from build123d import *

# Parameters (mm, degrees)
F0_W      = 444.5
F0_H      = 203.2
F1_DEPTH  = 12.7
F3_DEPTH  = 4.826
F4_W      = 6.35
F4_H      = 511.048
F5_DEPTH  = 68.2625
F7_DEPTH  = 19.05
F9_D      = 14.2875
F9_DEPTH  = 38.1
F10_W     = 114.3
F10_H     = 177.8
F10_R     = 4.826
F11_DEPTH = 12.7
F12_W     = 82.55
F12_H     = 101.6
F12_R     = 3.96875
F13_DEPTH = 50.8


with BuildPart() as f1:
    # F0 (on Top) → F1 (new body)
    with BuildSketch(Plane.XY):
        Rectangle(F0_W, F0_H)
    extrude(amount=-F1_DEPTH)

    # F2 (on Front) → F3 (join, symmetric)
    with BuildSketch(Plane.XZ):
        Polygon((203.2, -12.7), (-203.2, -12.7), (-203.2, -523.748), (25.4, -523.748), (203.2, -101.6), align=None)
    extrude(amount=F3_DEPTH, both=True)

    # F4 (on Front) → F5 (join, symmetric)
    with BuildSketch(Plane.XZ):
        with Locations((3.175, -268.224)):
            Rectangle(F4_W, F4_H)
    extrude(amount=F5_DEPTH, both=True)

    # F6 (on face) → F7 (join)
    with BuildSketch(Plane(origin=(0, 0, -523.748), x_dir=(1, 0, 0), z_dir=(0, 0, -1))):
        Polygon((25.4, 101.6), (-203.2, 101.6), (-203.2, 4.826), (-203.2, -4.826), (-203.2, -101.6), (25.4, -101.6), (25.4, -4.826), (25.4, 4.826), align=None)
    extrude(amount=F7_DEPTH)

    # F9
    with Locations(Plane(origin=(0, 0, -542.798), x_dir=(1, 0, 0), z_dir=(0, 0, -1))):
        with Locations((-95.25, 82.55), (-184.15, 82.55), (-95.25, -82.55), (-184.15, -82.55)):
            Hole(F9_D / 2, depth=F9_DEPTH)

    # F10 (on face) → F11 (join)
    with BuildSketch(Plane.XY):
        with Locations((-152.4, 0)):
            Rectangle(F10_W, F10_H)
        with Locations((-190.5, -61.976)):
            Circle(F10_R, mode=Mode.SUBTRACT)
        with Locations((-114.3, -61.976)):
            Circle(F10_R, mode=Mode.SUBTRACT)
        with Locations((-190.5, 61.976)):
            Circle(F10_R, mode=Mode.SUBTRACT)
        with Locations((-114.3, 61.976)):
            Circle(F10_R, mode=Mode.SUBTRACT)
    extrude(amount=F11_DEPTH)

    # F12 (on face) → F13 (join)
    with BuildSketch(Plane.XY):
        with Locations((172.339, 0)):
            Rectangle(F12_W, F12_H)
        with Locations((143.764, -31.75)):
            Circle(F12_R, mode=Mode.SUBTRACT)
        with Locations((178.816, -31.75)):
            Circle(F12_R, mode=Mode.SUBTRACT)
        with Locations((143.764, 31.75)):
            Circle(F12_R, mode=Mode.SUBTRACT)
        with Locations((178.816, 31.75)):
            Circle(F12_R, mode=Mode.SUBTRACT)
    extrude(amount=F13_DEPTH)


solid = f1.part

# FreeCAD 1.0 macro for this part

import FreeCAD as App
import Part
import Sketcher

V = App.Vector
Q = App.Units.Quantity


def add_polygon(sketch, points):
    """Adds a closed chain of lines whose ends are joined by coincident constraints."""
    first, n = sketch.GeometryCount, len(points)
    for a, b in zip(points, points[1:] + points[:1]):
        sketch.addGeometry(Part.LineSegment(App.Vector(*a, 0), App.Vector(*b, 0)), False)
    for i in range(n):
        sketch.addConstraint(Sketcher.Constraint("Coincident", first + i, 2, first + (i + 1) % n, 1))

doc = App.newDocument("Part")
params = doc.addObject("Spreadsheet::Sheet", "Params")
for row, (alias, value) in enumerate([
    ("sketch1_height", "8 in"),
    ("sketch1_width", "17.5 in"),
    ("pad1_length", "0.5 in"),
    ("sketch2_width", "16 in"),
    ("sketch2_width2", "9 in"),
    ("sketch2_height", "3.5 in"),
    ("sketch2_height2", "20.12 in"),
    ("pad2_length", "0.38 in"),
    ("sketch3_width", "0.25 in"),
    ("sketch3_height", "20.12 in"),
    ("pad3_length", "5.375 in"),
    ("sketch4_width", "9 in"),
    ("sketch4_height", "8 in"),
    ("pad4_length", "0.75 in"),
    ("sketch5_diameter", "0.5625 in"),
    ("hole_diameter", "0.5625 in"),
    ("hole_depth", "1.5 in"),
    ("sketch6_diameter", "0.38 in"),
    ("sketch6_height", "7 in"),
    ("sketch6_width", "4.5 in"),
    ("pad5_length", "0.5 in"),
    ("sketch7_height", "4 in"),
    ("sketch7_diameter", "0.3125 in"),
    ("sketch7_width", "3.25 in"),
    ("pad6_length", "2 in"),
], start=1):
    params.set(f"A{row}", alias)
    params.set(f"B{row}", "=" + value)
    params.setAlias(f"B{row}", alias)

body = doc.addObject("PartDesign::Body", "Body")

# Sketch on XY plane
sketch1 = body.newObject("Sketcher::SketchObject", "Sketch")
sketch1.AttachmentSupport = (doc.getObject("XY_Plane"), [""])
sketch1.MapMode = "FlatFace"
add_polygon(sketch1, [(-222, 102), (-222, -102), (222, -102), (222, 102)])  # lines 0-3
sketch1.addConstraint(Sketcher.Constraint("Vertical", 0))
sketch1.addConstraint(Sketcher.Constraint("Horizontal", 1))
sketch1.addConstraint(Sketcher.Constraint("Vertical", 2))
sketch1.addConstraint(Sketcher.Constraint("Horizontal", 3))
sketch1.addConstraint(Sketcher.Constraint("Symmetric", 0, 2, 2, 2, -1, 1))
sketch1.addConstraint(Sketcher.Constraint("DistanceY", 0, 2, 0, 1, Q("8 in")))
sketch1.addConstraint(Sketcher.Constraint("DistanceX", 1, 1, 1, 2, Q("17.5 in")))
sketch1.setExpression("Constraints[9]", "Params.sketch1_height")
sketch1.setExpression("Constraints[10]", "Params.sketch1_width")
pad1 = body.newObject("PartDesign::Pad", "Pad")
pad1.Profile = sketch1
pad1.setExpression("Length", "Params.pad1_length")
pad1.Reversed = True

# Sketch on XZ plane
sketch2 = body.newObject("Sketcher::SketchObject", "Sketch001")
sketch2.AttachmentSupport = (doc.getObject("XZ_Plane"), [""])
sketch2.MapMode = "FlatFace"
add_polygon(sketch2, [(203, -13), (-203, -13), (-203, -524), (25, -524), (203, -102)])  # lines 0-4
sketch2.addConstraint(Sketcher.Constraint("Horizontal", 0))
sketch2.addConstraint(Sketcher.Constraint("Vertical", 1))
sketch2.addConstraint(Sketcher.Constraint("Horizontal", 2))
sketch2.addConstraint(Sketcher.Constraint("Vertical", 4))
sketch2.addConstraint(Sketcher.Constraint("DistanceX", 0, 2, 0, 1, Q("16 in")))
sketch2.addConstraint(Sketcher.Constraint("DistanceX", 2, 1, 2, 2, Q("9 in")))
sketch2.addConstraint(Sketcher.Constraint("DistanceY", 4, 1, 4, 2, Q("3.5 in")))
sketch2.addConstraint(Sketcher.Constraint("DistanceX", 0, 2, -1, 1, Q("8 in")))
sketch2.addConstraint(Sketcher.Constraint("DistanceY", 3, 2, -1, 1, Q("4 in")))
sketch2.addConstraint(Sketcher.Constraint("DistanceY", 1, 2, 1, 1, Q("20.12 in")))
sketch2.setExpression("Constraints[9]", "Params.sketch2_width")
sketch2.setExpression("Constraints[10]", "Params.sketch2_width2")
sketch2.setExpression("Constraints[11]", "Params.sketch2_height")
sketch2.setExpression("Constraints[14]", "Params.sketch2_height2")
pad2 = body.newObject("PartDesign::Pad", "Pad001")
pad2.Profile = sketch2
pad2.setExpression("Length", "Params.pad2_length")
pad2.Midplane = True

# Sketch on XZ plane
sketch3 = body.newObject("Sketcher::SketchObject", "Sketch002")
sketch3.AttachmentSupport = (doc.getObject("XZ_Plane"), [""])
sketch3.MapMode = "FlatFace"
add_polygon(sketch3, [(0, -13), (0, -524), (6, -524), (6, -13)])  # lines 0-3
sketch3.addConstraint(Sketcher.Constraint("Vertical", 0))
sketch3.addConstraint(Sketcher.Constraint("Horizontal", 1))
sketch3.addConstraint(Sketcher.Constraint("Vertical", 2))
sketch3.addConstraint(Sketcher.Constraint("Horizontal", 3))
sketch3.addConstraint(Sketcher.Constraint("PointOnObject", 0, 2, -2))
sketch3.addConstraint(Sketcher.Constraint("DistanceX", 1, 1, 1, 2, Q("0.25 in")))
sketch3.addConstraint(Sketcher.Constraint("DistanceY", 0, 2, 0, 1, Q("20.12 in")))
sketch3.addConstraint(Sketcher.Constraint("DistanceY", 2, 2, -1, 1, Q("0.5 in")))
sketch3.setExpression("Constraints[9]", "Params.sketch3_width")
sketch3.setExpression("Constraints[10]", "Params.sketch3_height")
pad3 = body.newObject("PartDesign::Pad", "Pad002")
pad3.Profile = sketch3
pad3.setExpression("Length", "Params.pad3_length")
pad3.Midplane = True

# Sketch on XY plane
sketch4 = body.newObject("Sketcher::SketchObject", "Sketch003")
sketch4.AttachmentSupport = (doc.getObject("XY_Plane"), [""])
sketch4.MapMode = "FlatFace"
sketch4.AttachmentOffset = App.Placement(V(0, 0, -20.62 * 25.4), App.Rotation())
add_polygon(sketch4, [(25, -102), (-203, -102), (-203, 102), (25, 102)])  # lines 0-3
sketch4.addConstraint(Sketcher.Constraint("Horizontal", 0))
sketch4.addConstraint(Sketcher.Constraint("Vertical", 1))
sketch4.addConstraint(Sketcher.Constraint("Horizontal", 2))
sketch4.addConstraint(Sketcher.Constraint("Vertical", 3))
sketch4.addConstraint(Sketcher.Constraint("DistanceX", 0, 2, 0, 1, Q("9 in")))
sketch4.addConstraint(Sketcher.Constraint("DistanceY", 1, 1, 1, 2, Q("8 in")))
sketch4.addConstraint(Sketcher.Constraint("DistanceX", 0, 2, -1, 1, Q("8 in")))
sketch4.addConstraint(Sketcher.Constraint("DistanceY", 0, 2, -1, 1, Q("4 in")))
sketch4.setExpression("Constraints[8]", "Params.sketch4_width")
sketch4.setExpression("Constraints[9]", "Params.sketch4_height")
pad4 = body.newObject("PartDesign::Pad", "Pad003")
pad4.Profile = sketch4
pad4.setExpression("Length", "Params.pad4_length")
pad4.Reversed = True

# Sketch on XY plane
sketch5 = body.newObject("Sketcher::SketchObject", "Sketch004")
sketch5.AttachmentSupport = (doc.getObject("XY_Plane"), [""])
sketch5.MapMode = "FlatFace"
sketch5.AttachmentOffset = App.Placement(V(0, 0, -21.37 * 25.4), App.Rotation())
sketch5.addGeometry(Part.Circle(V(-95, -83, 0), V(0, 0, 1), 7), False)
sketch5.addGeometry(Part.Circle(V(-184, -83, 0), V(0, 0, 1), 7), False)
sketch5.addGeometry(Part.Circle(V(-95, 83, 0), V(0, 0, 1), 7), False)
sketch5.addGeometry(Part.Circle(V(-184, 83, 0), V(0, 0, 1), 7), False)
sketch5.addConstraint(Sketcher.Constraint("Equal", 0, 1))
sketch5.addConstraint(Sketcher.Constraint("Equal", 1, 2))
sketch5.addConstraint(Sketcher.Constraint("Equal", 2, 3))
sketch5.addConstraint(Sketcher.Constraint("Symmetric", 0, 3, 2, 3, -1))
sketch5.addConstraint(Sketcher.Constraint("Symmetric", 1, 3, 3, 3, -1))
sketch5.addConstraint(Sketcher.Constraint("Horizontal", 0, 3, 1, 3))
sketch5.addConstraint(Sketcher.Constraint("Diameter", 0, Q("0.5625 in")))
sketch5.addConstraint(Sketcher.Constraint("DistanceX", 1, 3, 0, 3, Q("3.5 in")))
sketch5.addConstraint(Sketcher.Constraint("DistanceY", 0, 3, 2, 3, Q("6.5 in")))
sketch5.addConstraint(Sketcher.Constraint("DistanceX", 0, 3, -1, 1, Q("3.75 in")))
sketch5.setExpression("Constraints[6]", "Params.sketch5_diameter")
doc.recompute()
hole = body.newObject("PartDesign::Hole", "Hole")
hole.Profile = sketch5
hole.ThreadType = "None"
hole.setExpression("Diameter", "Params.hole_diameter")
hole.DepthType = "Dimension"
hole.setExpression("Depth", "Params.hole_depth")
hole.DrillPoint = "Flat"
hole.Reversed = True

# Sketch on XY plane
sketch6 = body.newObject("Sketcher::SketchObject", "Sketch005")
sketch6.AttachmentSupport = (doc.getObject("XY_Plane"), [""])
sketch6.MapMode = "FlatFace"
add_polygon(sketch6, [(-209.6, 88.9), (-209.6, -88.9), (-95.2, -88.9), (-95.2, 88.9)])  # lines 0-3
sketch6.addGeometry(Part.Circle(V(-190.5, -62, 0), V(0, 0, 1), 4.8), False)  # 4
sketch6.addGeometry(Part.Circle(V(-114.3, -62, 0), V(0, 0, 1), 4.8), False)  # 5
sketch6.addGeometry(Part.Circle(V(-190.5, 62, 0), V(0, 0, 1), 4.8), False)  # 6
sketch6.addGeometry(Part.Circle(V(-114.3, 62, 0), V(0, 0, 1), 4.8), False)  # 7
sketch6.addConstraint(Sketcher.Constraint("Vertical", 0))
sketch6.addConstraint(Sketcher.Constraint("Horizontal", 1))
sketch6.addConstraint(Sketcher.Constraint("Vertical", 2))
sketch6.addConstraint(Sketcher.Constraint("Horizontal", 3))
sketch6.addConstraint(Sketcher.Constraint("Equal", 4, 5))
sketch6.addConstraint(Sketcher.Constraint("Equal", 5, 6))
sketch6.addConstraint(Sketcher.Constraint("Equal", 6, 7))
sketch6.addConstraint(Sketcher.Constraint("Symmetric", 4, 3, 6, 3, -1))
sketch6.addConstraint(Sketcher.Constraint("Symmetric", 5, 3, 7, 3, -1))
sketch6.addConstraint(Sketcher.Constraint("Horizontal", 4, 3, 5, 3))
sketch6.addConstraint(Sketcher.Constraint("Diameter", 4, Q("0.38 in")))
sketch6.addConstraint(Sketcher.Constraint("DistanceY", 0, 2, 0, 1, Q("7 in")))
sketch6.addConstraint(Sketcher.Constraint("DistanceX", 1, 1, 1, 2, Q("4.5 in")))
sketch6.addConstraint(Sketcher.Constraint("DistanceX", 4, 3, 5, 3, Q("3 in")))
sketch6.addConstraint(Sketcher.Constraint("DistanceX", 4, 3, -1, 1, Q("7.5 in")))
sketch6.addConstraint(Sketcher.Constraint("DistanceY", 0, 2, -1, 1, Q("3.5 in")))
sketch6.addConstraint(Sketcher.Constraint("DistanceY", 4, 3, -1, 1, Q("2.44 in")))
sketch6.addConstraint(Sketcher.Constraint("DistanceX", 0, 2, -1, 1, Q("8.25 in")))
sketch6.setExpression("Constraints[14]", "Params.sketch6_diameter")
sketch6.setExpression("Constraints[15]", "Params.sketch6_height")
sketch6.setExpression("Constraints[16]", "Params.sketch6_width")
pad5 = body.newObject("PartDesign::Pad", "Pad004")
pad5.Profile = sketch6
pad5.setExpression("Length", "Params.pad5_length")

# Sketch on XY plane
sketch7 = body.newObject("Sketcher::SketchObject", "Sketch006")
sketch7.AttachmentSupport = (doc.getObject("XY_Plane"), [""])
sketch7.MapMode = "FlatFace"
add_polygon(sketch7, [(131.1, 50.8), (131.1, -50.8), (213.6, -50.8), (213.6, 50.8)])  # lines 0-3
sketch7.addGeometry(Part.Circle(V(143.8, -31.8, 0), V(0, 0, 1), 4), False)  # 4
sketch7.addGeometry(Part.Circle(V(178.8, -31.8, 0), V(0, 0, 1), 4), False)  # 5
sketch7.addGeometry(Part.Circle(V(143.8, 31.8, 0), V(0, 0, 1), 4), False)  # 6
sketch7.addGeometry(Part.Circle(V(178.8, 31.8, 0), V(0, 0, 1), 4), False)  # 7
sketch7.addConstraint(Sketcher.Constraint("Vertical", 0))
sketch7.addConstraint(Sketcher.Constraint("Horizontal", 1))
sketch7.addConstraint(Sketcher.Constraint("Vertical", 2))
sketch7.addConstraint(Sketcher.Constraint("Horizontal", 3))
sketch7.addConstraint(Sketcher.Constraint("Equal", 4, 5))
sketch7.addConstraint(Sketcher.Constraint("Equal", 5, 6))
sketch7.addConstraint(Sketcher.Constraint("Equal", 6, 7))
sketch7.addConstraint(Sketcher.Constraint("Symmetric", 4, 3, 6, 3, -1))
sketch7.addConstraint(Sketcher.Constraint("Symmetric", 5, 3, 7, 3, -1))
sketch7.addConstraint(Sketcher.Constraint("Horizontal", 4, 3, 5, 3))
sketch7.addConstraint(Sketcher.Constraint("DistanceY", 0, 2, 0, 1, Q("4 in")))
sketch7.addConstraint(Sketcher.Constraint("Diameter", 4, Q("0.3125 in")))
sketch7.addConstraint(Sketcher.Constraint("DistanceY", 0, 2, -1, 1, Q("2 in")))
sketch7.addConstraint(Sketcher.Constraint("DistanceX", 1, 1, 1, 2, Q("3.25 in")))
sketch7.addConstraint(Sketcher.Constraint("DistanceY", 4, 3, 6, 3, Q("2.5 in")))
sketch7.addConstraint(Sketcher.Constraint("DistanceX", 0, 2, 4, 3, Q("0.5 in")))
sketch7.addConstraint(Sketcher.Constraint("DistanceX", -1, 1, 4, 3, Q("5.66 in")))
sketch7.addConstraint(Sketcher.Constraint("DistanceX", -1, 1, 5, 3, Q("7.04 in")))
sketch7.setExpression("Constraints[14]", "Params.sketch7_height")
sketch7.setExpression("Constraints[15]", "Params.sketch7_diameter")
sketch7.setExpression("Constraints[17]", "Params.sketch7_width")
pad6 = body.newObject("PartDesign::Pad", "Pad005")
pad6.Profile = sketch7
pad6.setExpression("Length", "Params.pad6_length")

doc.recompute()
